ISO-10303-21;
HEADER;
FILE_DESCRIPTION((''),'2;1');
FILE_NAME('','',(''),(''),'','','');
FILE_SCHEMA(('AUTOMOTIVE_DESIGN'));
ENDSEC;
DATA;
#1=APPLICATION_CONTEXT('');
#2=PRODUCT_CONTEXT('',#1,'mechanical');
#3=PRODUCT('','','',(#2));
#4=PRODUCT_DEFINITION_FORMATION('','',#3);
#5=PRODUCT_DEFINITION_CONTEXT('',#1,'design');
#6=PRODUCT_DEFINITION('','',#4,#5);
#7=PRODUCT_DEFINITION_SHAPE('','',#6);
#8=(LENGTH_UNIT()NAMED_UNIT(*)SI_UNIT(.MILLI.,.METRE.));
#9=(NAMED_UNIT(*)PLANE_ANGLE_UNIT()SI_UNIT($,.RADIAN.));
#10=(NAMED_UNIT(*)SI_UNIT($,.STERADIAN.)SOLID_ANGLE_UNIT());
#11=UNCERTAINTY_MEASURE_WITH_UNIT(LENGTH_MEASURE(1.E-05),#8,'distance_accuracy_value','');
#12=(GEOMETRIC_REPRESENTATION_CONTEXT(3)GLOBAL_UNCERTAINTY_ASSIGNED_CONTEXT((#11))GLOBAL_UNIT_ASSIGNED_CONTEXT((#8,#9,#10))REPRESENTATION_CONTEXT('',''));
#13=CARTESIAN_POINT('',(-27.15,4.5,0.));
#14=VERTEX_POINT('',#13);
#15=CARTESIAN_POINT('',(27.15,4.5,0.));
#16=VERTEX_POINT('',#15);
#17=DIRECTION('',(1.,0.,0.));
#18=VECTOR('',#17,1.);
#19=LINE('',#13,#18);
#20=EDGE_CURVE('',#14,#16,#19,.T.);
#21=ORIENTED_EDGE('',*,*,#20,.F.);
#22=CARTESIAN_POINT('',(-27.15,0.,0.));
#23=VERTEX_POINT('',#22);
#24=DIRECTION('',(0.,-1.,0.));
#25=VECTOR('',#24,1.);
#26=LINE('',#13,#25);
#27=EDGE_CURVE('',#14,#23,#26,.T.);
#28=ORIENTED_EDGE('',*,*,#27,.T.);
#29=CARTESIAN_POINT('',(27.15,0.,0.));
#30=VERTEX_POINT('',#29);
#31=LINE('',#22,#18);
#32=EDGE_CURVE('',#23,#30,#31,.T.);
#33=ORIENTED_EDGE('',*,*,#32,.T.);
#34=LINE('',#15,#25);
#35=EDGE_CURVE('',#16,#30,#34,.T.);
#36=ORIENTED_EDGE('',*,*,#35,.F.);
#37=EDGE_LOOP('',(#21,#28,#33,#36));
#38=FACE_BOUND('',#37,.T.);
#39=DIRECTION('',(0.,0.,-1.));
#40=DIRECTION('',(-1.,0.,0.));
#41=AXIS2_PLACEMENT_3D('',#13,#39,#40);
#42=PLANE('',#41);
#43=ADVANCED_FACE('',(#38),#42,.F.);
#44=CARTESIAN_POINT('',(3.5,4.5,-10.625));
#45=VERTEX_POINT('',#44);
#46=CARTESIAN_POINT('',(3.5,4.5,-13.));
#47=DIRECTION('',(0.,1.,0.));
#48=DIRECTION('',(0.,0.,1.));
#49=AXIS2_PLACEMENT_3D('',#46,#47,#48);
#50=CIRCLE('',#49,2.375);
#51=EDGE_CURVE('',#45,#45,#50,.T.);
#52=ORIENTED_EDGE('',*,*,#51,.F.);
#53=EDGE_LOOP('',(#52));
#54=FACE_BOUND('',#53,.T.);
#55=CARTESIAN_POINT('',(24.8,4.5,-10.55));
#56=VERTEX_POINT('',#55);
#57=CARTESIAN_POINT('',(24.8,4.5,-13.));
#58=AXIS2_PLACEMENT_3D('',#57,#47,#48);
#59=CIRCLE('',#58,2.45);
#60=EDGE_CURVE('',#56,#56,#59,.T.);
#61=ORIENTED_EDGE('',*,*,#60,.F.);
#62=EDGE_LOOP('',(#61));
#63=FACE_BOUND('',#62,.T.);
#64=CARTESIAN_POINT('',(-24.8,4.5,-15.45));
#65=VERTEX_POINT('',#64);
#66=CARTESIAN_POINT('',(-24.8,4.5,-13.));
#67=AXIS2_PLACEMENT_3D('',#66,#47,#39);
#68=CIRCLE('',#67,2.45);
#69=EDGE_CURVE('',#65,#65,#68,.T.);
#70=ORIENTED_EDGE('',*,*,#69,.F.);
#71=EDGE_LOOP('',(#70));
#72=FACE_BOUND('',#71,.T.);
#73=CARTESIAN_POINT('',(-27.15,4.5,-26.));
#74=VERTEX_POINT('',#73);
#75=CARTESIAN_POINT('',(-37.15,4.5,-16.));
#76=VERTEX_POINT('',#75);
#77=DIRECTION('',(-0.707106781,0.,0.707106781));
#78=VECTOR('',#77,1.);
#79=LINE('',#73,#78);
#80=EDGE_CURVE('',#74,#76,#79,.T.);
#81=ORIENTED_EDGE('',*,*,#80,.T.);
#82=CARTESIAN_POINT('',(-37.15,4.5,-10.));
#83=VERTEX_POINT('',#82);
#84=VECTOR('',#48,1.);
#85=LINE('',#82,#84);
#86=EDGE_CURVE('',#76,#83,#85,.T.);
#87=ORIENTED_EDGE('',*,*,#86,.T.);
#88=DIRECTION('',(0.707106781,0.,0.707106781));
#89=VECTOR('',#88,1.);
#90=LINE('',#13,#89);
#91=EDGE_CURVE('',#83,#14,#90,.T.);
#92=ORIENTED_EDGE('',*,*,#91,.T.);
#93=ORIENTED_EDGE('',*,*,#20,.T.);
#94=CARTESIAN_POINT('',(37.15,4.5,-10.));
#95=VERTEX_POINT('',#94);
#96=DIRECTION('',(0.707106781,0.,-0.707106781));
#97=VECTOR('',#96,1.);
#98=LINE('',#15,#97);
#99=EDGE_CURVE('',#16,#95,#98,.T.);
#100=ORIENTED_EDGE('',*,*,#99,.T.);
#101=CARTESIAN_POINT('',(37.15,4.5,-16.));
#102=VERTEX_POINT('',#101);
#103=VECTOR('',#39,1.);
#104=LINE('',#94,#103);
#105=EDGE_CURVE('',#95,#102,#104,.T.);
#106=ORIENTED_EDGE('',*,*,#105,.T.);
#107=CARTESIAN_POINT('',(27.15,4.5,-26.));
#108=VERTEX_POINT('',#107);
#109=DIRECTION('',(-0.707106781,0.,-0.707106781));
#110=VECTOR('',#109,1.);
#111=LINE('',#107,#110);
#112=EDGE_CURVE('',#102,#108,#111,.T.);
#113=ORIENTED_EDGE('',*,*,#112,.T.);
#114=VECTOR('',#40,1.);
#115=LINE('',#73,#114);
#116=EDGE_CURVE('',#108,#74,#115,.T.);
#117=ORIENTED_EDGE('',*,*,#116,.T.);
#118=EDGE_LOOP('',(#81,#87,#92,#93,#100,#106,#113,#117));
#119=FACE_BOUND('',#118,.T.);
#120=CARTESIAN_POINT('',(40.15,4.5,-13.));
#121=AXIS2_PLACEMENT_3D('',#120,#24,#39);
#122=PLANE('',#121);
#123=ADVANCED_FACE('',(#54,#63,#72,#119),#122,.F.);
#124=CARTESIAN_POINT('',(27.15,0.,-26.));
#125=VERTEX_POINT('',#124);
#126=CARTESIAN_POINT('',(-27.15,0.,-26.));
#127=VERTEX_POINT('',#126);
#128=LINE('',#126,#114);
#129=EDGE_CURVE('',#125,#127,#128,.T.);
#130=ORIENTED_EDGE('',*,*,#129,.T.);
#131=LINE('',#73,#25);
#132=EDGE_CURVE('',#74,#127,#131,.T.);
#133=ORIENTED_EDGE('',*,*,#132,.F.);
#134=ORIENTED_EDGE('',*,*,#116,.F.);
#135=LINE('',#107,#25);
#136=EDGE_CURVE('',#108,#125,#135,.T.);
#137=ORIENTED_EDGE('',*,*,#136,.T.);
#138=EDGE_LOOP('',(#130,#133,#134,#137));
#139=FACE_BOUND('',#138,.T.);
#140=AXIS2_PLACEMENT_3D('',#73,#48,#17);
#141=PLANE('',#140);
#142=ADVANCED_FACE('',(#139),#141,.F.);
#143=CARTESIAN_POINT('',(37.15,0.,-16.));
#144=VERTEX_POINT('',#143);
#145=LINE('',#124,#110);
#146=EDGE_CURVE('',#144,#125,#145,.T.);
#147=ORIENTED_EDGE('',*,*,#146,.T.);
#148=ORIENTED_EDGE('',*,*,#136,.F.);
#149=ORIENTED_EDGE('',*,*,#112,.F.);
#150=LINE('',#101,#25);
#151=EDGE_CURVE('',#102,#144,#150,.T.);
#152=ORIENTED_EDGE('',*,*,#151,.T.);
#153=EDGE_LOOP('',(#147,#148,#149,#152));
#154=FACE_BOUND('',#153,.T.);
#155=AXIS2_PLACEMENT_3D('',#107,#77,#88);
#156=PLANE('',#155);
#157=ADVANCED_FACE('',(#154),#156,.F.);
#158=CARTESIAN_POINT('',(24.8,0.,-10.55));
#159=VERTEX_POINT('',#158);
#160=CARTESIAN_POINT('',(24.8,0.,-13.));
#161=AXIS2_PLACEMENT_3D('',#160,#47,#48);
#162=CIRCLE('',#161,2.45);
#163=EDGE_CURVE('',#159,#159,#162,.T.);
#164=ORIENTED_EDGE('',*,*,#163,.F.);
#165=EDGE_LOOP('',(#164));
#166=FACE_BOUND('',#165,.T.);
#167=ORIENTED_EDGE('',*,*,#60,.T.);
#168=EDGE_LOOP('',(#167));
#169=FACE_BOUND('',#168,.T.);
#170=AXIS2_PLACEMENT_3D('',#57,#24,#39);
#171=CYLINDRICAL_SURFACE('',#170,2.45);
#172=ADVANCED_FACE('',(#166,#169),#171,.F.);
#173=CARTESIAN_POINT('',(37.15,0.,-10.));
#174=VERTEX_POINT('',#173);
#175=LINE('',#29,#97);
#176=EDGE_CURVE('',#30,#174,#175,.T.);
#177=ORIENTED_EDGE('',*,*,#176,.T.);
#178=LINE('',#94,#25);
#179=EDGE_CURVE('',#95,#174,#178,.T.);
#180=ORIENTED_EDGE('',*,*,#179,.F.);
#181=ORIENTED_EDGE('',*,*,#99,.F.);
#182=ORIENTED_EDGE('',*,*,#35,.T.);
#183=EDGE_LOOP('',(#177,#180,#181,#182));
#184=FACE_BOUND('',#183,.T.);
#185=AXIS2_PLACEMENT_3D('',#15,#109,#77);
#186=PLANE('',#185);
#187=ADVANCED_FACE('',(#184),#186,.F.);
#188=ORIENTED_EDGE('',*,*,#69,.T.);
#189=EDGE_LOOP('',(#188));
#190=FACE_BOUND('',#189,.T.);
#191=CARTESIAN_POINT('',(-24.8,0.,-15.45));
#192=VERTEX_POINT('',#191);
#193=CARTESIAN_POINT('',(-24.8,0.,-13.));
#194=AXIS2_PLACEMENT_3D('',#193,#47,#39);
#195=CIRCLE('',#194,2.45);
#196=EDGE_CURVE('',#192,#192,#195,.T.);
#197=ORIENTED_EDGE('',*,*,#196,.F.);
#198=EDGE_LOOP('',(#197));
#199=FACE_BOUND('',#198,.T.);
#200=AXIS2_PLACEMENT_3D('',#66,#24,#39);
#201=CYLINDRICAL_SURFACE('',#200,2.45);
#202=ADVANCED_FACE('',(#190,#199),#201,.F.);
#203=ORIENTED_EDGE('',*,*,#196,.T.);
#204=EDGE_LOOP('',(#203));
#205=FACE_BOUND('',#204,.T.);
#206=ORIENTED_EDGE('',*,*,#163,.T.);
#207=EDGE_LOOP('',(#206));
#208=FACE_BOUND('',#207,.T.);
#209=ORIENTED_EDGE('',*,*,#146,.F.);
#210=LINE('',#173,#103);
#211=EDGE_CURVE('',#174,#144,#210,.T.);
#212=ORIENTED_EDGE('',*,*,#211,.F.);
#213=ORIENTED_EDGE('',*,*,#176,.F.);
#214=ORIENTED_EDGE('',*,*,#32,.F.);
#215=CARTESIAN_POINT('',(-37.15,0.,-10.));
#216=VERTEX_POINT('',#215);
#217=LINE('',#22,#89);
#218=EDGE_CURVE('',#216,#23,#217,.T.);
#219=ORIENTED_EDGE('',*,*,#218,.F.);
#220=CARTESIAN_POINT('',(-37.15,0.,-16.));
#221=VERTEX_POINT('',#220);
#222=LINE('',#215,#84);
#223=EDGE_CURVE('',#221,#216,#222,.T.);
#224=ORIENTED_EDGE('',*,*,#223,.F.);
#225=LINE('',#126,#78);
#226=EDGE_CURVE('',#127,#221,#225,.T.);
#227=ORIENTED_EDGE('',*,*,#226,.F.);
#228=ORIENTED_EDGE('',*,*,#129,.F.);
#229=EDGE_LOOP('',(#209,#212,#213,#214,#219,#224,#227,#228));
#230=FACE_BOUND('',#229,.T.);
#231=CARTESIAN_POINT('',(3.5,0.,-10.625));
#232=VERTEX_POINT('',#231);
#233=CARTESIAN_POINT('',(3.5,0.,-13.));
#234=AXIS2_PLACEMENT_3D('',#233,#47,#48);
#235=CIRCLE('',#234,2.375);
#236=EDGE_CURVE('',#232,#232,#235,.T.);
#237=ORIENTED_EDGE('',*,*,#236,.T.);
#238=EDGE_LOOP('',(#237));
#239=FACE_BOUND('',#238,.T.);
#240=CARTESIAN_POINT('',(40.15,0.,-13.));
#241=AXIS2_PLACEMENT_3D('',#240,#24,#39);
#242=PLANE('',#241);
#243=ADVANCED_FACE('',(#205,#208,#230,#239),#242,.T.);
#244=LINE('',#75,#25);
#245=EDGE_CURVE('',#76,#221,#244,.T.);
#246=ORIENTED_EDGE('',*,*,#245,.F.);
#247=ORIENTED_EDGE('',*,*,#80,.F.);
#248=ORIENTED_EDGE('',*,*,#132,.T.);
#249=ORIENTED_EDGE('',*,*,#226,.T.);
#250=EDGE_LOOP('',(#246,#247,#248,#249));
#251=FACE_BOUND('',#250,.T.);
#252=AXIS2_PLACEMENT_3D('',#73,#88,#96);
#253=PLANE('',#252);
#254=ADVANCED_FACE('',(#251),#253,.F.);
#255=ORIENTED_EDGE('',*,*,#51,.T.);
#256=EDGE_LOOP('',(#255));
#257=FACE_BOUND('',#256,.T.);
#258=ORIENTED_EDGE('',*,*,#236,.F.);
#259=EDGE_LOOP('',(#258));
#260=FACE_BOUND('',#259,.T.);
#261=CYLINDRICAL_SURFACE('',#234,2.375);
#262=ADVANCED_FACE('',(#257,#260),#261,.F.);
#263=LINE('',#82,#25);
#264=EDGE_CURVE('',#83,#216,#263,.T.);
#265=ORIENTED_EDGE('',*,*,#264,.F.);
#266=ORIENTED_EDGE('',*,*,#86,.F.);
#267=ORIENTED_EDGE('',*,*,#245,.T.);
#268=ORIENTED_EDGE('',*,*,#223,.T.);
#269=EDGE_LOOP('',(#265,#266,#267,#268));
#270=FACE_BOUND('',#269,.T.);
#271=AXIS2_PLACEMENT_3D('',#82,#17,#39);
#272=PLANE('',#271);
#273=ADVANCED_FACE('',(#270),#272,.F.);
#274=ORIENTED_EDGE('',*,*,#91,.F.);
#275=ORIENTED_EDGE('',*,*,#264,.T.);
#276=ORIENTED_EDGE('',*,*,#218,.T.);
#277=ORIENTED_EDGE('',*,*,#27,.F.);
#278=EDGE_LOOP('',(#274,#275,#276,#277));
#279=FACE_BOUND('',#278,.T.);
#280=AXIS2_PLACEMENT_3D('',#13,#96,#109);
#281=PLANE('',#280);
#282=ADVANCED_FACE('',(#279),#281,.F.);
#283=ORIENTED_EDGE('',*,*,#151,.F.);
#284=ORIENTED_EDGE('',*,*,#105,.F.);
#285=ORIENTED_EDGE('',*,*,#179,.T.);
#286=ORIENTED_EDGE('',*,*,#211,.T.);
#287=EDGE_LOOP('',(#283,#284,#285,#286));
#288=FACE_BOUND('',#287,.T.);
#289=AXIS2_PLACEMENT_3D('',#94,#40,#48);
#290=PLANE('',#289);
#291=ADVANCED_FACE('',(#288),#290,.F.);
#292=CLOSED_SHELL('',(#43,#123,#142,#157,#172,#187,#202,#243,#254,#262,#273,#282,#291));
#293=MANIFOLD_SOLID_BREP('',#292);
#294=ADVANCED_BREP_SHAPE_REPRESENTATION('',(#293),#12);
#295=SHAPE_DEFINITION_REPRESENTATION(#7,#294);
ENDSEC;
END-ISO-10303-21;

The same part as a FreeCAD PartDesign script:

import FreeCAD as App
import Part
import Sketcher

V = App.Vector

doc = App.newDocument("Part")
body = doc.addObject("PartDesign::Body", "Body")

# Sketch on XZ plane
sketch1 = body.newObject("Sketcher::SketchObject", "Sketch")
sketch1.AttachmentSupport = (doc.getObject("XZ_Plane"), [""])
sketch1.MapMode = "FlatFace"
sketch1.addGeometry([
    Part.LineSegment(V(37.15, -16, 0), V(27.15, -26, 0)),  # 0
    Part.LineSegment(V(27.15, -26, 0), V(-27.15, -26, 0)),  # 1
    Part.LineSegment(V(-27.15, -26, 0), V(-37.15, -16, 0)),  # 2
    Part.LineSegment(V(-37.15, -16, 0), V(-37.15, -10, 0)),  # 3
    Part.LineSegment(V(-37.15, -10, 0), V(-27.15, 0, 0)),  # 4
    Part.LineSegment(V(-27.15, 0, 0), V(27.15, 0, 0)),  # 5
    Part.LineSegment(V(27.15, 0, 0), V(37.15, -10, 0)),  # 6
    Part.LineSegment(V(37.15, -10, 0), V(37.15, -16, 0)),  # 7
    Part.Circle(V(24.8, -13, 0), V(0, 0, 1), 2.45),  # 8
    Part.Circle(V(-24.8, -13, 0), V(0, 0, 1), 2.45),  # 9
], False)
sketch1.addConstraint([
    Sketcher.Constraint("Coincident", 0, 2, 1, 1),
    Sketcher.Constraint("Coincident", 1, 2, 2, 1),
    Sketcher.Constraint("Coincident", 2, 2, 3, 1),
    Sketcher.Constraint("Coincident", 3, 2, 4, 1),
    Sketcher.Constraint("Coincident", 4, 2, 5, 1),
    Sketcher.Constraint("Coincident", 5, 2, 6, 1),
    Sketcher.Constraint("Coincident", 6, 2, 7, 1),
    Sketcher.Constraint("Coincident", 7, 2, 0, 1),
    Sketcher.Constraint("Horizontal", 1),
    Sketcher.Constraint("Vertical", 3),
    Sketcher.Constraint("Horizontal", 5),
    Sketcher.Constraint("Vertical", 7),
    Sketcher.Constraint("Equal", 8, 9),
    Sketcher.Constraint("Symmetric", 4, 2, 5, 2, -1, 1),
    Sketcher.Constraint("Symmetric", 8, 3, 9, 3, -2),
    Sketcher.Constraint("Symmetric", 3, 2, 6, 2, -2),
    Sketcher.Constraint("Perpendicular", 0, 2),
    Sketcher.Constraint("Perpendicular", 2, 4),
    Sketcher.Constraint("Perpendicular", 4, 6),
    Sketcher.Constraint("Horizontal", 2, 2, 7, 2),
    Sketcher.Constraint("Vertical", 1, 2, 4, 2),
    Sketcher.Constraint("Diameter", 8, 4.9),
    Sketcher.Constraint("DistanceY", 3, 1, 3, 2, 6.0),
    Sketcher.Constraint("DistanceX", 1, 2, 1, 1, 54.3),
    Sketcher.Constraint("DistanceY", 8, 3, -1, 1, 13.0),
    Sketcher.Constraint("DistanceY", 0, 2, -1, 1, 26.0),
    Sketcher.Constraint("DistanceX", -1, 1, 8, 3, 24.8),
])
pad1 = body.newObject("PartDesign::Pad", "Pad")
pad1.Profile = sketch1
pad1.Length = 4.5
pad1.Reversed = True

# Sketch on XZ plane
sketch2 = body.newObject("Sketcher::SketchObject", "Sketch001")
sketch2.AttachmentSupport = (doc.getObject("XZ_Plane"), [""])
sketch2.MapMode = "FlatFace"
sketch2.AttachmentOffset = App.Placement(V(0, 0, -4.5), App.Rotation())
sketch2.addGeometry(Part.Circle(V(3.5, -13, 0), V(0, 0, 1), 2.375), False)
sketch2.addConstraint([
    Sketcher.Constraint("Diameter", 0, 4.75),
    Sketcher.Constraint("DistanceY", 0, 3, -1, 1, 13.0),
    Sketcher.Constraint("DistanceX", -1, 1, 0, 3, 3.5),
])
pocket1 = body.newObject("PartDesign::Pocket", "Pocket")
pocket1.Profile = sketch2
pocket1.Type = "ThroughAll"
pocket1.Reversed = True

doc.recompute()
